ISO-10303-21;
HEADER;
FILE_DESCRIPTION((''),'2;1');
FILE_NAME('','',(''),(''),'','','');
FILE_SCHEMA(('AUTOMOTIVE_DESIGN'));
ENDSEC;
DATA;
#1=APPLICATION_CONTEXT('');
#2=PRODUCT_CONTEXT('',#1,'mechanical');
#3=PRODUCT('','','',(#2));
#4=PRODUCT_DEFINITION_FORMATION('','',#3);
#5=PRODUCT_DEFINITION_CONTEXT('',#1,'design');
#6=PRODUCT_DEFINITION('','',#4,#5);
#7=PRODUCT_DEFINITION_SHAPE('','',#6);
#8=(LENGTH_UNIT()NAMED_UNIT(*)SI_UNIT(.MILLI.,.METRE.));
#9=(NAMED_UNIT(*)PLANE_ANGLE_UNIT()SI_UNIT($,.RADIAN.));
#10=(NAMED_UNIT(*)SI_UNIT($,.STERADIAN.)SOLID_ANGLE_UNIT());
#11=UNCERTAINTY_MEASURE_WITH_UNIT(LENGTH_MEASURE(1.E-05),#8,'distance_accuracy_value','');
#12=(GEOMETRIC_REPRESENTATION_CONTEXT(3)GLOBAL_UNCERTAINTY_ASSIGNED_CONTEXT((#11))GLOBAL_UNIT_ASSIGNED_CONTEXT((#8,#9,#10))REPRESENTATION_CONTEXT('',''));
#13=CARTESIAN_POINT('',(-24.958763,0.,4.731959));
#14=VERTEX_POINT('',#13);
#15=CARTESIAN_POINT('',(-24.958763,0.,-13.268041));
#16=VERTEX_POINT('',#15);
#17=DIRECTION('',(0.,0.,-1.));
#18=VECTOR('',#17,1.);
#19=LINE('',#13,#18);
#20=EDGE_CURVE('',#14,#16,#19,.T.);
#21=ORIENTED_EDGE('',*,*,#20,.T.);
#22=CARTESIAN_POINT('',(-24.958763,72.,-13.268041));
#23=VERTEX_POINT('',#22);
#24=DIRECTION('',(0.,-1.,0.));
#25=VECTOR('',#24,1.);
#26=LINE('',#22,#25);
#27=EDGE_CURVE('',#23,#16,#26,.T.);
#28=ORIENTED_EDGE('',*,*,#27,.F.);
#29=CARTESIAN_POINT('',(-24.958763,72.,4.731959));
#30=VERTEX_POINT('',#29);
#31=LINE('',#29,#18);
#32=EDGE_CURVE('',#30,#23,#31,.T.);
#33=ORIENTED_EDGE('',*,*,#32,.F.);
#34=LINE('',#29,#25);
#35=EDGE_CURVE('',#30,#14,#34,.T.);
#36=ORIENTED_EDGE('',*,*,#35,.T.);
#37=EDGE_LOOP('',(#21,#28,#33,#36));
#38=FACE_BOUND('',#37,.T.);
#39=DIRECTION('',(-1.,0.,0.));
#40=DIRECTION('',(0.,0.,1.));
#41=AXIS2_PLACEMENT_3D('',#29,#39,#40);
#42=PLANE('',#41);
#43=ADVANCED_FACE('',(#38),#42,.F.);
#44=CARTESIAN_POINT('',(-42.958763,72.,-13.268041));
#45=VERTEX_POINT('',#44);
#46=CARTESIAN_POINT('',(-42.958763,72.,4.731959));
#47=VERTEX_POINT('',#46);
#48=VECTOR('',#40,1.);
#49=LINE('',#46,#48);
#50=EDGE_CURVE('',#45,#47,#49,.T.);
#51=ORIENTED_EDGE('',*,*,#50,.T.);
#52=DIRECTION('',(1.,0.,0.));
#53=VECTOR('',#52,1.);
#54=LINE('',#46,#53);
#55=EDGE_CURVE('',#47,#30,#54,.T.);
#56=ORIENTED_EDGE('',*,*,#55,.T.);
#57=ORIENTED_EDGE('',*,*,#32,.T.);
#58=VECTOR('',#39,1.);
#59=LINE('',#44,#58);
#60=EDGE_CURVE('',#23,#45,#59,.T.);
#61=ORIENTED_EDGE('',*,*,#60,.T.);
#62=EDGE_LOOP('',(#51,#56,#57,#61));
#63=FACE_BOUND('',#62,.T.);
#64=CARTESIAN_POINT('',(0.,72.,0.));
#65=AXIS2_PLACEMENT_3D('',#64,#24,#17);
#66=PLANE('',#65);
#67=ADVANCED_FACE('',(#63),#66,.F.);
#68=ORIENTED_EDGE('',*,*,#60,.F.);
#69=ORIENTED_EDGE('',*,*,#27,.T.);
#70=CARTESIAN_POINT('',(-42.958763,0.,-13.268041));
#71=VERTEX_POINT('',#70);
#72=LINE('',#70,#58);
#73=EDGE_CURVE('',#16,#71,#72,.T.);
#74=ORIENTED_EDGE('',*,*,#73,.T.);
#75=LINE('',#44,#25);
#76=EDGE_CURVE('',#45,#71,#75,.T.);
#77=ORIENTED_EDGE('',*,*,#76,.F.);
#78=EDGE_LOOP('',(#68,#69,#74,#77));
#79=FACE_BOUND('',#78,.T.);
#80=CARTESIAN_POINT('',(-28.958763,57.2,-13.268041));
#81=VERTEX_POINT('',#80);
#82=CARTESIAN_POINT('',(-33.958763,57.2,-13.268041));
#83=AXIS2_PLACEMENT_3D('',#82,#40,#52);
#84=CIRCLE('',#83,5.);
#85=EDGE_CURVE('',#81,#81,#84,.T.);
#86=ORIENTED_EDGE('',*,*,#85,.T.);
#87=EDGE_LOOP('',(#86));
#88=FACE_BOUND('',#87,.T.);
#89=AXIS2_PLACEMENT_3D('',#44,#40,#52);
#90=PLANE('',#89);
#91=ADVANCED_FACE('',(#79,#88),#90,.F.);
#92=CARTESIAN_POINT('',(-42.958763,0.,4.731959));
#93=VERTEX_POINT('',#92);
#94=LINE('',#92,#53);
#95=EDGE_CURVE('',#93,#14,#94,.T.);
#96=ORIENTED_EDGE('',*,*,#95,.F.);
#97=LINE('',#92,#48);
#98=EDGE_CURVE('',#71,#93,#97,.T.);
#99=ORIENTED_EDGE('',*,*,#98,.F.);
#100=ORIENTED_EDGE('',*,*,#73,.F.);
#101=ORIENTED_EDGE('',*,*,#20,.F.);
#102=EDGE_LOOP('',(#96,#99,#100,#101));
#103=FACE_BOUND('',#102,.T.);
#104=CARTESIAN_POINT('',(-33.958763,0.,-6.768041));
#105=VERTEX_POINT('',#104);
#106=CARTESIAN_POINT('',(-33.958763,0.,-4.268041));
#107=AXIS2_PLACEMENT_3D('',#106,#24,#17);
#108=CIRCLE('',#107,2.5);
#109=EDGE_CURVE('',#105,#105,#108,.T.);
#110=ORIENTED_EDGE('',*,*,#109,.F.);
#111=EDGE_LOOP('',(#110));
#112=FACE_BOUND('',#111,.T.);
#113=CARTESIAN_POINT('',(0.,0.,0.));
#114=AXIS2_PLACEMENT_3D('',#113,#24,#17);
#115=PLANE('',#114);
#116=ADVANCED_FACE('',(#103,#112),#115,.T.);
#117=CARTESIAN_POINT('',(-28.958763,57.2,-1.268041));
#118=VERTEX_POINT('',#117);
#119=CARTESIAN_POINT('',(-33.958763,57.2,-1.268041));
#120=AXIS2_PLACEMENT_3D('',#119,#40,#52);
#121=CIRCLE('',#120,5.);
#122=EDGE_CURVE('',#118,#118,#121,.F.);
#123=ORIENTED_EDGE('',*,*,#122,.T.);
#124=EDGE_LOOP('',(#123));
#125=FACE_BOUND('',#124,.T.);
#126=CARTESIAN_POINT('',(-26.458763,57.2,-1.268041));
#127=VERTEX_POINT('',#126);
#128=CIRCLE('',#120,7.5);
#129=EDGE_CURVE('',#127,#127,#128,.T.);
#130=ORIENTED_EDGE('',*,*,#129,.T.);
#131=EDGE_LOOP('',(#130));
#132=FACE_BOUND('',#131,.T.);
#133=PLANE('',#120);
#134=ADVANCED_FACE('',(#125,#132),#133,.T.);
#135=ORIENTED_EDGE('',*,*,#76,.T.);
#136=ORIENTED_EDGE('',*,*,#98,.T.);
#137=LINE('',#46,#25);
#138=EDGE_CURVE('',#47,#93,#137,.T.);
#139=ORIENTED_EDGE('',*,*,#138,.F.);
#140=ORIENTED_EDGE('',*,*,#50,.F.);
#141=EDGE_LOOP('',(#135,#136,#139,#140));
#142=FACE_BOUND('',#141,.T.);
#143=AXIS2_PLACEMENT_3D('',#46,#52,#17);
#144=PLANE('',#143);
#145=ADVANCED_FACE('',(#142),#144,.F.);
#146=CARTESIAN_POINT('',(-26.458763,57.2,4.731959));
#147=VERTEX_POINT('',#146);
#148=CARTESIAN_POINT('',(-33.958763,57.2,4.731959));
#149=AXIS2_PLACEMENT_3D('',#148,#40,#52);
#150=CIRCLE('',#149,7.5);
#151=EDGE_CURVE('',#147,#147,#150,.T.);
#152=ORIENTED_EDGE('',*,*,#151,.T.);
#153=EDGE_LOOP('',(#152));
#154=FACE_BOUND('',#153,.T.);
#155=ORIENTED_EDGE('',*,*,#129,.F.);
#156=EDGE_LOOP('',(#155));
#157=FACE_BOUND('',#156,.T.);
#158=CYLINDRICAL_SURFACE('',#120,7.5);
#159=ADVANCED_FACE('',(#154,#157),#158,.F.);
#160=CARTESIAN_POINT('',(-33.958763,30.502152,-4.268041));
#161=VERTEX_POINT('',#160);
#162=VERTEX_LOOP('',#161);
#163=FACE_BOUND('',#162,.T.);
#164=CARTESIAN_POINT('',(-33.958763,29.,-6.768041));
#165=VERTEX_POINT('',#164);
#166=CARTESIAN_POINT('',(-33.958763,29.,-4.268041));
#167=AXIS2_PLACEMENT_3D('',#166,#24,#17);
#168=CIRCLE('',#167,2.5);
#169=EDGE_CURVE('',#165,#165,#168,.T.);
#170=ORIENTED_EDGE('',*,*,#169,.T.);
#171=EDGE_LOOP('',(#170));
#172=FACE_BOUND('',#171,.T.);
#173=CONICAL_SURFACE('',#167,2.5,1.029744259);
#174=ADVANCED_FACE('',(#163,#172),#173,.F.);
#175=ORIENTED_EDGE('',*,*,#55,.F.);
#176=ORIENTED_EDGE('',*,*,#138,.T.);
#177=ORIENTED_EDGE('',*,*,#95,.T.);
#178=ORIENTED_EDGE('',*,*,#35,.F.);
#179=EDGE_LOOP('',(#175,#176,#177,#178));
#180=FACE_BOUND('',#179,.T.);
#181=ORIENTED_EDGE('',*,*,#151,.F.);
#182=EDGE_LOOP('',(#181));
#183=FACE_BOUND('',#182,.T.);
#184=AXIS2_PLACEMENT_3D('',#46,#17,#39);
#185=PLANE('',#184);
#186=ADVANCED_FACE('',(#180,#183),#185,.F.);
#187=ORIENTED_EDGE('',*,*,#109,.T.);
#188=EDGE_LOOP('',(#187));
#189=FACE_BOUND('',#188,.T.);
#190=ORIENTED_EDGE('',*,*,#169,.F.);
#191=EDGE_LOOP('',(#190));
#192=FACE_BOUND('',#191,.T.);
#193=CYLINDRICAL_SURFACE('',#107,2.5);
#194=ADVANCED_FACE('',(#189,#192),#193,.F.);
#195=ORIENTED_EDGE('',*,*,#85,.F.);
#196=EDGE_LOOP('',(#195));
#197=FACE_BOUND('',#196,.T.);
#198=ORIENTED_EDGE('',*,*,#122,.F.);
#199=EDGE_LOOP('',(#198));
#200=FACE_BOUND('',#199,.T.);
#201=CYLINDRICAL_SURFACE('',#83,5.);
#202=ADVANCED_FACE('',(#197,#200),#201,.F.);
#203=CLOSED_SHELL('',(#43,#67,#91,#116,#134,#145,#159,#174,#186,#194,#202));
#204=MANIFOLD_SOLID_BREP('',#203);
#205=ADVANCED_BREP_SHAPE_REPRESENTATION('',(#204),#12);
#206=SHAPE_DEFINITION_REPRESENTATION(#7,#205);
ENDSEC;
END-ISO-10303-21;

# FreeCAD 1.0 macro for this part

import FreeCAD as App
import Part
import Sketcher


def add_polygon(sketch, points):
    """Adds a closed chain of lines whose ends are joined by coincident constraints."""
    first, n = sketch.GeometryCount, len(points)
    for a, b in zip(points, points[1:] + points[:1]):
        sketch.addGeometry(Part.LineSegment(App.Vector(*a, 0), App.Vector(*b, 0)), False)
    for i in range(n):
        sketch.addConstraint(Sketcher.Constraint("Coincident", first + i, 2, first + (i + 1) % n, 1))

doc = App.newDocument("Part")
params = doc.addObject("Spreadsheet::Sheet", "Params")
for row, (alias, value) in enumerate([
    ("sketch1_width", "18 mm"),
    ("pad1_length", "72 mm"),
    ("sketch2_diameter", "10 mm"),
    ("sketch3_diameter", "5 mm"),
    ("hole_diameter", "5 mm"),
    ("hole_depth", "29 mm"),
    ("sketch4_diameter", "15 mm"),
    ("pocket2_length", "6 mm"),
], start=1):
    params.set(f"A{row}", alias)
    params.set(f"B{row}", "=" + value)
    params.setAlias(f"B{row}", alias)

body = doc.addObject("PartDesign::Body", "Body")

# Sketch on XZ plane
sketch1 = doc.addObject("Sketcher::SketchObject", "Sketch")
body.addObject(sketch1)
sketch1.AttachmentSupport = (doc.XZ_Plane, [""])
sketch1.MapMode = "FlatFace"
add_polygon(sketch1, [(-42.958763, -13.268041), (-42.958763, 4.731959), (-24.958763, 4.731959), (-24.958763, -13.268041)])  # lines 0-3
sketch1.addConstraint([
    Sketcher.Constraint("Vertical", 0),
    Sketcher.Constraint("Horizontal", 1),
    Sketcher.Constraint("Vertical", 2),
    Sketcher.Constraint("Horizontal", 3),
    Sketcher.Constraint("Equal", 3, 0),
    Sketcher.Constraint("DistanceX", 1, 1, 1, 2, 18.0),
    Sketcher.Constraint("DistanceY", -1, 1, 0, 2, 4.731959),
    Sketcher.Constraint("DistanceX", 0, 2, -1, 1, 42.958763),
])
sketch1.setExpression("Constraints[9]", "Params.sketch1_width")
pad1 = doc.addObject("PartDesign::Pad", "Pad")
body.addObject(pad1)
pad1.Profile = sketch1
pad1.setExpression("Length", "Params.pad1_length")
pad1.Reversed = True

# Sketch on XY plane
sketch2 = doc.addObject("Sketcher::SketchObject", "Sketch001")
body.addObject(sketch2)
sketch2.AttachmentSupport = (doc.XY_Plane, [""])
sketch2.MapMode = "FlatFace"
sketch2.AttachmentOffset = App.Placement(App.Vector(0, 0, 4.731959), App.Rotation())
sketch2.addGeometry(Part.Circle(App.Vector(-33.958763, 57.2, 0), App.Vector(0, 0, 1), 5), False)
sketch2.addConstraint([
    Sketcher.Constraint("Diameter", 0, 10.0),
    Sketcher.Constraint("DistanceY", -1, 1, 0, 3, 57.2),
    Sketcher.Constraint("DistanceX", 0, 3, -1, 1, 33.958763),
])
sketch2.setExpression("Constraints[0]", "Params.sketch2_diameter")
pocket1 = doc.addObject("PartDesign::Pocket", "Pocket")
body.addObject(pocket1)
pocket1.Profile = sketch2
pocket1.Type = "ThroughAll"

# Sketch on XZ plane
sketch3 = doc.addObject("Sketcher::SketchObject", "Sketch002")
body.addObject(sketch3)
sketch3.AttachmentSupport = (doc.XZ_Plane, [""])
sketch3.MapMode = "FlatFace"
sketch3.addGeometry(Part.Circle(App.Vector(-33.958763, -4.268041, 0), App.Vector(0, 0, 1), 2.5), False)
sketch3.addConstraint([
    Sketcher.Constraint("Diameter", 0, 5.0),
    Sketcher.Constraint("DistanceY", 0, 3, -1, 1, 4.268041),
    Sketcher.Constraint("DistanceX", 0, 3, -1, 1, 33.958763),
])
sketch3.setExpression("Constraints[0]", "Params.sketch3_diameter")
doc.recompute()
hole = doc.addObject("PartDesign::Hole", "Hole")
body.addObject(hole)
hole.Profile = sketch3
hole.ThreadType = "None"
hole.setExpression("Diameter", "Params.hole_diameter")
hole.DepthType = "Dimension"
hole.setExpression("Depth", "Params.hole_depth")
hole.DrillPoint = "Angled"
hole.DrillPointAngle = 118

# Sketch on XY plane
sketch4 = doc.addObject("Sketcher::SketchObject", "Sketch003")
body.addObject(sketch4)
sketch4.AttachmentSupport = (doc.XY_Plane, [""])
sketch4.MapMode = "FlatFace"
sketch4.AttachmentOffset = App.Placement(App.Vector(0, 0, 4.731959), App.Rotation())
sketch4.addGeometry(Part.Circle(App.Vector(-33.958763, 57.2, 0), App.Vector(0, 0, 1), 7.5), False)
sketch4.addConstraint([
    Sketcher.Constraint("Diameter", 0, 15.0),
    Sketcher.Constraint("DistanceY", -1, 1, 0, 3, 57.2),
    Sketcher.Constraint("DistanceX", 0, 3, -1, 1, 33.958763),
])
sketch4.setExpression("Constraints[0]", "Params.sketch4_diameter")
pocket2 = doc.addObject("PartDesign::Pocket", "Pocket001")
body.addObject(pocket2)
pocket2.Profile = sketch4
pocket2.setExpression("Length", "Params.pocket2_length")

doc.recompute()
